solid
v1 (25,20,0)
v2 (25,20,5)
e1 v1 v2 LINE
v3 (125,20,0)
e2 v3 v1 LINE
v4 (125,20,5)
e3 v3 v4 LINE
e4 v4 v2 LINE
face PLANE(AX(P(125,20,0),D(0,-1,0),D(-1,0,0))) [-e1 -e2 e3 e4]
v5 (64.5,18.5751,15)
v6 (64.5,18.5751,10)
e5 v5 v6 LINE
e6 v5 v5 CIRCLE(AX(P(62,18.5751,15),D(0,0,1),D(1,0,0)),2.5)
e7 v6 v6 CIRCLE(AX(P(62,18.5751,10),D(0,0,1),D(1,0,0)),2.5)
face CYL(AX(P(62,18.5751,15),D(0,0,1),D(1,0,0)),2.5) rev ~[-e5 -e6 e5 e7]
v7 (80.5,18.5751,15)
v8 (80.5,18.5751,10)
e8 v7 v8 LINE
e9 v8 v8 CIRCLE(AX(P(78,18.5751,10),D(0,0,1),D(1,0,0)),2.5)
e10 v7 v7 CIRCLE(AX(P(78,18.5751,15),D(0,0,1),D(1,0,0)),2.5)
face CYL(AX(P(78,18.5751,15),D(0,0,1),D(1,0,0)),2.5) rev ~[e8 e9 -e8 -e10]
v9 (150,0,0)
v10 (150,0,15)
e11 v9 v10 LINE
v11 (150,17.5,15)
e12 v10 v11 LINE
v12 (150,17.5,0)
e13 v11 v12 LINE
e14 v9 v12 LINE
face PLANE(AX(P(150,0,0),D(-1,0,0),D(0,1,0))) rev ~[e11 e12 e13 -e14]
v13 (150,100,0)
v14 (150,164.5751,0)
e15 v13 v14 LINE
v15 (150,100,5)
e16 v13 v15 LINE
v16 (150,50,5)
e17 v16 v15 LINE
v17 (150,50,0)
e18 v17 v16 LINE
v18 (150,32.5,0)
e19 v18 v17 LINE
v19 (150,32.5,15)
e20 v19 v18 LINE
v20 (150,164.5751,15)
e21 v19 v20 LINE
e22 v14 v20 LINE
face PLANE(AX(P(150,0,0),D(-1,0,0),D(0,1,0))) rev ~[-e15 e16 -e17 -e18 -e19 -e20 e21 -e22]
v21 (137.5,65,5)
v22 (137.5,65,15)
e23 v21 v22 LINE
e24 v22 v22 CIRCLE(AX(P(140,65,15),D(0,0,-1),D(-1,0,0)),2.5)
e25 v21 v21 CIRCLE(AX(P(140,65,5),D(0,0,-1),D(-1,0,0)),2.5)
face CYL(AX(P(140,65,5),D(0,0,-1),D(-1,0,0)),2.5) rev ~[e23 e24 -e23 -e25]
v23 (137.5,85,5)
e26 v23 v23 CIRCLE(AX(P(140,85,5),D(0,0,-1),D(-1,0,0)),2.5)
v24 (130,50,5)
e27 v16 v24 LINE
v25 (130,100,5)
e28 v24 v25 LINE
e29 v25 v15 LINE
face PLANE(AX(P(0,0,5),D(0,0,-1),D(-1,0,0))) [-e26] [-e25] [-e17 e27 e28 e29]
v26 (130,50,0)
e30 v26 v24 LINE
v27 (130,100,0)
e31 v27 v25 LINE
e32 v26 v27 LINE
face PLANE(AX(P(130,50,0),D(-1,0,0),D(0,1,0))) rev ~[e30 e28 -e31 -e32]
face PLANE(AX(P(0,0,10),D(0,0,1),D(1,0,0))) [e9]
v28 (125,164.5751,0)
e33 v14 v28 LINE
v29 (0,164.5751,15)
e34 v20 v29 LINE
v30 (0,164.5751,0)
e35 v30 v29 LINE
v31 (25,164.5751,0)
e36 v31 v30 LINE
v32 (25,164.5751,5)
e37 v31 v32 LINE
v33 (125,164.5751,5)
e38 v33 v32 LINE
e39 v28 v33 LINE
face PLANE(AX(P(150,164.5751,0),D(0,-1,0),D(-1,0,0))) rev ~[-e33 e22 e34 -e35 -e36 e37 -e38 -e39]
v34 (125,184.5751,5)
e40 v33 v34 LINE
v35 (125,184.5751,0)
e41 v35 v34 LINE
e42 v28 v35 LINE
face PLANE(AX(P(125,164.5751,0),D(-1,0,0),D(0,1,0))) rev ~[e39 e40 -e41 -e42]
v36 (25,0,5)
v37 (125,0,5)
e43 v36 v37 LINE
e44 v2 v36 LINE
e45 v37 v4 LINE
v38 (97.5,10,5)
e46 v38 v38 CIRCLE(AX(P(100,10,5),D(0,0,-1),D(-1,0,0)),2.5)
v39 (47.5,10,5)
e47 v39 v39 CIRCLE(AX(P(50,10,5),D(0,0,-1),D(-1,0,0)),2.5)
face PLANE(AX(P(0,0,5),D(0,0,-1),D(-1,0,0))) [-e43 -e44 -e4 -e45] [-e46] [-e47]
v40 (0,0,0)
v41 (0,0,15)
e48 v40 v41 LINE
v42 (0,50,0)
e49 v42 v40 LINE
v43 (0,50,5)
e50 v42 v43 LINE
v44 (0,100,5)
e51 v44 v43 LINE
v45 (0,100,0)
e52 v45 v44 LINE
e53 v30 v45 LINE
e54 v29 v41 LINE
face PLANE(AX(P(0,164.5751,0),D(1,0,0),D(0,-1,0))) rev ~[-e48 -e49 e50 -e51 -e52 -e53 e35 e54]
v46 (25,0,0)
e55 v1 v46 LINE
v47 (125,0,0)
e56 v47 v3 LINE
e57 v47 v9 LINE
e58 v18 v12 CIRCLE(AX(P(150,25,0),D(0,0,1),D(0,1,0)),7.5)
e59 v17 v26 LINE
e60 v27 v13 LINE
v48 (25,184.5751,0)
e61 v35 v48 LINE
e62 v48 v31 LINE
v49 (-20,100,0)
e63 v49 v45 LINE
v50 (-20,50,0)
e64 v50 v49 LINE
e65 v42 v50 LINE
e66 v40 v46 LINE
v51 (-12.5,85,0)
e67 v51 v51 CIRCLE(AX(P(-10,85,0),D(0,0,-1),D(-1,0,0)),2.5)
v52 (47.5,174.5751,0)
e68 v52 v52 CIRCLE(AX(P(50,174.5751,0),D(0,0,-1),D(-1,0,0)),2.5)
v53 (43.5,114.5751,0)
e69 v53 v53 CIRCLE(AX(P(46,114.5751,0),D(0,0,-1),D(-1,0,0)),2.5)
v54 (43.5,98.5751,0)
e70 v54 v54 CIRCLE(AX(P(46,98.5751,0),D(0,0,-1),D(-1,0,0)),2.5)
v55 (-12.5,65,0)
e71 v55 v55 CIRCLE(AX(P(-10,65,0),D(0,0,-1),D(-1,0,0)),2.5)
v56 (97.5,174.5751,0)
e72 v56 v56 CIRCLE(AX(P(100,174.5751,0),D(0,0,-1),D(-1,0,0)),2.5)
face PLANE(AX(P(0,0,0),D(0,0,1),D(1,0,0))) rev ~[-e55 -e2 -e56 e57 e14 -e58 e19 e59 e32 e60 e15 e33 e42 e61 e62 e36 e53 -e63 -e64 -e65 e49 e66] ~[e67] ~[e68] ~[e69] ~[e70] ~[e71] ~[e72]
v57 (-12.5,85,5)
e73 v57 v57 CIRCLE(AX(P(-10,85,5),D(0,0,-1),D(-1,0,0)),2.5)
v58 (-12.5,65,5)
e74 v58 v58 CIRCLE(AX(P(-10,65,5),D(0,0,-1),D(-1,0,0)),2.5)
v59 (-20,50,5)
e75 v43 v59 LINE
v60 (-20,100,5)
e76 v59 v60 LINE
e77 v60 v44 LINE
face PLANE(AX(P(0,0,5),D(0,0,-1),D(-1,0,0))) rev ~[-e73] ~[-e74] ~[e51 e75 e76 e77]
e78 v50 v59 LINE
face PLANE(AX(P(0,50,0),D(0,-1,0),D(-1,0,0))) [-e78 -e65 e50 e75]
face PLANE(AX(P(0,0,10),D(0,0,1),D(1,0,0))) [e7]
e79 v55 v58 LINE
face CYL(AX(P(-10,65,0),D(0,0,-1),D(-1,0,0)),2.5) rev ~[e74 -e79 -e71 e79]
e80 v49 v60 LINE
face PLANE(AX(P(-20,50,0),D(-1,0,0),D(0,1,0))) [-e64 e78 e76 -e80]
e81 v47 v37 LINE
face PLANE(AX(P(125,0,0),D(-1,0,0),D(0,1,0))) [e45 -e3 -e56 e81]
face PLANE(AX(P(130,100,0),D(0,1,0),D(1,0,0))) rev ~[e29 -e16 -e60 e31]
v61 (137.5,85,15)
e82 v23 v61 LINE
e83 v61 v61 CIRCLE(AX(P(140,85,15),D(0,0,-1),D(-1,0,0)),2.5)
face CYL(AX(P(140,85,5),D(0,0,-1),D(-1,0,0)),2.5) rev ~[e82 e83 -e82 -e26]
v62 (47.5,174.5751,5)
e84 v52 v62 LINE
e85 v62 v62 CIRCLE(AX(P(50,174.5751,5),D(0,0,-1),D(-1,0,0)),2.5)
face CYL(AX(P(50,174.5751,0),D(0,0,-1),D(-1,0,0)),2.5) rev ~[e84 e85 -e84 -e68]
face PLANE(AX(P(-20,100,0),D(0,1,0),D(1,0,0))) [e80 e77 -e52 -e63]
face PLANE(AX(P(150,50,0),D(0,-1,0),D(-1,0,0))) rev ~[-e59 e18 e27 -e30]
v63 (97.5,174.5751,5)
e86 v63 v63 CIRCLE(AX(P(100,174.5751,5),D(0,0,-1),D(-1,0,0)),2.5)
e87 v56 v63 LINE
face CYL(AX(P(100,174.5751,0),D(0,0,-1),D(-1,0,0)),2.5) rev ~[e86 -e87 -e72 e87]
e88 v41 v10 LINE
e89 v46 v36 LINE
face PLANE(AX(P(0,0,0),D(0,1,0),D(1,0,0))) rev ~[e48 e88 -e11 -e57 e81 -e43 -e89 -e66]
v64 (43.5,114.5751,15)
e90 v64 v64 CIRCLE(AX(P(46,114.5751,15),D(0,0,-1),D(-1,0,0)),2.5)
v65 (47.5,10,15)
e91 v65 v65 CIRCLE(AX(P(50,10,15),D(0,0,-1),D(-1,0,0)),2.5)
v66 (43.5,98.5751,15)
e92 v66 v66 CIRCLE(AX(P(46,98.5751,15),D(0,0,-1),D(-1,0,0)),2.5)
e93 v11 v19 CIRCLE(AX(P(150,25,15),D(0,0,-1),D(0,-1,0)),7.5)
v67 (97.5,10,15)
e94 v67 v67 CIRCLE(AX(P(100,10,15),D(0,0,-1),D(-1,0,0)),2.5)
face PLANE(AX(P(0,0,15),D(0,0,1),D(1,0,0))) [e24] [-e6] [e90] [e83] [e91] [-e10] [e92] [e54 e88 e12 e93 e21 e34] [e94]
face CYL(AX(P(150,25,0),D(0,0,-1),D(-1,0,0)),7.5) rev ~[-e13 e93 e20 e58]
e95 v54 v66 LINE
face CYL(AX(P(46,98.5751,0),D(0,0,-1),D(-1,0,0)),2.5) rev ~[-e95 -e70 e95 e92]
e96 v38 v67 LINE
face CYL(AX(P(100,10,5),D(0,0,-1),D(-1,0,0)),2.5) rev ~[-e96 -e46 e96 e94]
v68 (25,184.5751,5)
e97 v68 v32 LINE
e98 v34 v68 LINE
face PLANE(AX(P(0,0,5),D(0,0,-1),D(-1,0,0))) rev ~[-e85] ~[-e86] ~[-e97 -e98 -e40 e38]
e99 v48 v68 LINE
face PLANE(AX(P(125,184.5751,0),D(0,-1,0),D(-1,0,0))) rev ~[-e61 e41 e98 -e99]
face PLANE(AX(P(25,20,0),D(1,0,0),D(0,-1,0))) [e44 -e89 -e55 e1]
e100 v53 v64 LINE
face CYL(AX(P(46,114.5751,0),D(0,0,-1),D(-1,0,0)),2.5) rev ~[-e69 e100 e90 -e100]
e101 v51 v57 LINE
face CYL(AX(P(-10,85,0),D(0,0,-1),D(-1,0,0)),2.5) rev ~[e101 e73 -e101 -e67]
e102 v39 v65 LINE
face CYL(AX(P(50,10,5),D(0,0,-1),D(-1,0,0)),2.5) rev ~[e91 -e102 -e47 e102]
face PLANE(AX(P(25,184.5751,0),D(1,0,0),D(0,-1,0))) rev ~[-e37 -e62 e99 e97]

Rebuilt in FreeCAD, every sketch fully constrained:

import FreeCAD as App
import Part
import Sketcher
Q = App.Units.Quantity

doc = App.newDocument("Part")
body = doc.addObject("PartDesign::Body", "Body")

# Sketch on XY plane
sketch1 = body.newObject("Sketcher::SketchObject", "Sketch")
sketch1.AttachmentSupport = (doc.getObject("XY_Plane"), [""])
sketch1.MapMode = "FlatFace"
sketch1.addGeometry(Part.LineSegment(App.Vector(0, 165, 0), App.Vector(0, 0, 0)), False)
sketch1.addGeometry(Part.LineSegment(App.Vector(0, 0, 0), App.Vector(150, 0, 0)), False)
sketch1.addGeometry(Part.LineSegment(App.Vector(150, 0, 0), App.Vector(150, 165, 0)), False)
sketch1.addGeometry(Part.LineSegment(App.Vector(150, 165, 0), App.Vector(0, 165, 0)), False)
sketch1.addConstraint(Sketcher.Constraint("Coincident", 0, 2, 1, 1))
sketch1.addConstraint(Sketcher.Constraint("Coincident", 1, 2, 2, 1))
sketch1.addConstraint(Sketcher.Constraint("Coincident", 2, 2, 3, 1))
sketch1.addConstraint(Sketcher.Constraint("Coincident", 3, 2, 0, 1))
sketch1.addConstraint(Sketcher.Constraint("Vertical", 0))
sketch1.addConstraint(Sketcher.Constraint("Horizontal", 1))
sketch1.addConstraint(Sketcher.Constraint("Vertical", 2))
sketch1.addConstraint(Sketcher.Constraint("Horizontal", 3))
sketch1.addConstraint(Sketcher.Constraint("Coincident", 0, 2, -1, 1))
sketch1.addConstraint(Sketcher.Constraint("DistanceX", 1, 1, 1, 2, Q("150 mm")))
sketch1.addConstraint(Sketcher.Constraint("DistanceY", 0, 2, 0, 1, Q("164.575 mm")))
pad1 = body.newObject("PartDesign::Pad", "Pad")
pad1.Profile = sketch1
pad1.Length = 15

# Sketch on XY plane
sketch2 = body.newObject("Sketcher::SketchObject", "Sketch001")
sketch2.AttachmentSupport = (doc.getObject("XY_Plane"), [""])
sketch2.MapMode = "FlatFace"
sketch2.addGeometry(Part.LineSegment(App.Vector(0, 100, 0), App.Vector(0, 50, 0)), False)
sketch2.addGeometry(Part.LineSegment(App.Vector(0, 50, 0), App.Vector(-20, 50, 0)), False)
sketch2.addGeometry(Part.LineSegment(App.Vector(-20, 50, 0), App.Vector(-20, 100, 0)), False)
sketch2.addGeometry(Part.LineSegment(App.Vector(-20, 100, 0), App.Vector(0, 100, 0)), False)
sketch2.addConstraint(Sketcher.Constraint("Coincident", 0, 2, 1, 1))
sketch2.addConstraint(Sketcher.Constraint("Coincident", 1, 2, 2, 1))
sketch2.addConstraint(Sketcher.Constraint("Coincident", 2, 2, 3, 1))
sketch2.addConstraint(Sketcher.Constraint("Coincident", 3, 2, 0, 1))
sketch2.addConstraint(Sketcher.Constraint("Vertical", 0))
sketch2.addConstraint(Sketcher.Constraint("Horizontal", 1))
sketch2.addConstraint(Sketcher.Constraint("Vertical", 2))
sketch2.addConstraint(Sketcher.Constraint("Horizontal", 3))
sketch2.addConstraint(Sketcher.Constraint("PointOnObject", 0, 2, -2))
sketch2.addConstraint(Sketcher.Constraint("DistanceX", 1, 2, 1, 1, Q("20 mm")))
sketch2.addConstraint(Sketcher.Constraint("DistanceY", 0, 2, 0, 1, Q("50 mm")))
sketch2.addConstraint(Sketcher.Constraint("DistanceY", -1, 1, 0, 2, Q("50 mm")))
pad2 = body.newObject("PartDesign::Pad", "Pad001")
pad2.Profile = sketch2
pad2.Length = 5

# Sketch on XY plane
sketch3 = body.newObject("Sketcher::SketchObject", "Sketch002")
sketch3.AttachmentSupport = (doc.getObject("XY_Plane"), [""])
sketch3.MapMode = "FlatFace"
sketch3.addGeometry(Part.LineSegment(App.Vector(125, 185, 0), App.Vector(125, 165, 0)), False)
sketch3.addGeometry(Part.LineSegment(App.Vector(125, 165, 0), App.Vector(25, 165, 0)), False)
sketch3.addGeometry(Part.LineSegment(App.Vector(25, 165, 0), App.Vector(25, 185, 0)), False)
sketch3.addGeometry(Part.LineSegment(App.Vector(25, 185, 0), App.Vector(125, 185, 0)), False)
sketch3.addConstraint(Sketcher.Constraint("Coincident", 0, 2, 1, 1))
sketch3.addConstraint(Sketcher.Constraint("Coincident", 1, 2, 2, 1))
sketch3.addConstraint(Sketcher.Constraint("Coincident", 2, 2, 3, 1))
sketch3.addConstraint(Sketcher.Constraint("Coincident", 3, 2, 0, 1))
sketch3.addConstraint(Sketcher.Constraint("Vertical", 0))
sketch3.addConstraint(Sketcher.Constraint("Horizontal", 1))
sketch3.addConstraint(Sketcher.Constraint("Vertical", 2))
sketch3.addConstraint(Sketcher.Constraint("Horizontal", 3))
sketch3.addConstraint(Sketcher.Constraint("DistanceX", 1, 2, 1, 1, Q("100 mm")))
sketch3.addConstraint(Sketcher.Constraint("DistanceY", 0, 2, 0, 1, Q("20 mm")))
sketch3.addConstraint(Sketcher.Constraint("DistanceX", -1, 1, 0, 2, Q("125 mm")))
sketch3.addConstraint(Sketcher.Constraint("DistanceY", -1, 1, 0, 2, Q("164.575 mm")))
pad3 = body.newObject("PartDesign::Pad", "Pad002")
pad3.Profile = sketch3
pad3.Length = 5

# Sketch on XY plane
sketch4 = body.newObject("Sketcher::SketchObject", "Sketch003")
sketch4.AttachmentSupport = (doc.getObject("XY_Plane"), [""])
sketch4.MapMode = "FlatFace"
sketch4.addGeometry(Part.Circle(App.Vector(50, 174.6, 0), App.Vector(0, 0, 1), 2.5), False)
sketch4.addGeometry(Part.Circle(App.Vector(100, 174.6, 0), App.Vector(0, 0, 1), 2.5), False)
sketch4.addGeometry(Part.Circle(App.Vector(-10, 65, 0), App.Vector(0, 0, 1), 2.5), False)
sketch4.addGeometry(Part.Circle(App.Vector(-10, 85, 0), App.Vector(0, 0, 1), 2.5), False)
sketch4.addConstraint(Sketcher.Constraint("Equal", 0, 1))
sketch4.addConstraint(Sketcher.Constraint("Equal", 1, 2))
sketch4.addConstraint(Sketcher.Constraint("Equal", 2, 3))
sketch4.addConstraint(Sketcher.Constraint("Horizontal", 0, 3, 1, 3))
sketch4.addConstraint(Sketcher.Constraint("Vertical", 2, 3, 3, 3))
sketch4.addConstraint(Sketcher.Constraint("Diameter", 0, Q("5 mm")))
sketch4.addConstraint(Sketcher.Constraint("DistanceX", 2, 3, -1, 1, Q("10 mm")))
sketch4.addConstraint(Sketcher.Constraint("DistanceX", -1, 1, 0, 3, Q("50 mm")))
sketch4.addConstraint(Sketcher.Constraint("DistanceX", -1, 1, 1, 3, Q("100 mm")))
sketch4.addConstraint(Sketcher.Constraint("DistanceY", -1, 1, 2, 3, Q("65 mm")))
sketch4.addConstraint(Sketcher.Constraint("DistanceY", -1, 1, 3, 3, Q("85 mm")))
sketch4.addConstraint(Sketcher.Constraint("DistanceY", -1, 1, 0, 3, Q("174.575 mm")))
pocket1 = body.newObject("PartDesign::Pocket", "Pocket")
pocket1.Profile = sketch4
pocket1.Type = "ThroughAll"
pocket1.Reversed = True

# Sketch on XY plane
sketch5 = body.newObject("Sketcher::SketchObject", "Sketch004")
sketch5.AttachmentSupport = (doc.getObject("XY_Plane"), [""])
sketch5.MapMode = "FlatFace"
sketch5.addGeometry(Part.LineSegment(App.Vector(150, 100, 0), App.Vector(150, 50, 0)), False)
sketch5.addGeometry(Part.LineSegment(App.Vector(150, 50, 0), App.Vector(130, 50, 0)), False)
sketch5.addGeometry(Part.LineSegment(App.Vector(130, 50, 0), App.Vector(130, 100, 0)), False)
sketch5.addGeometry(Part.LineSegment(App.Vector(130, 100, 0), App.Vector(150, 100, 0)), False)
sketch5.addConstraint(Sketcher.Constraint("Coincident", 0, 2, 1, 1))
sketch5.addConstraint(Sketcher.Constraint("Coincident", 1, 2, 2, 1))
sketch5.addConstraint(Sketcher.Constraint("Coincident", 2, 2, 3, 1))
sketch5.addConstraint(Sketcher.Constraint("Coincident", 3, 2, 0, 1))
sketch5.addConstraint(Sketcher.Constraint("Vertical", 0))
sketch5.addConstraint(Sketcher.Constraint("Horizontal", 1))
sketch5.addConstraint(Sketcher.Constraint("Vertical", 2))
sketch5.addConstraint(Sketcher.Constraint("Horizontal", 3))
sketch5.addConstraint(Sketcher.Constraint("DistanceX", 1, 2, 1, 1, Q("20 mm")))
sketch5.addConstraint(Sketcher.Constraint("DistanceY", 0, 2, 0, 1, Q("50 mm")))
sketch5.addConstraint(Sketcher.Constraint("DistanceY", -1, 1, 0, 2, Q("50 mm")))
sketch5.addConstraint(Sketcher.Constraint("DistanceX", -1, 1, 0, 2, Q("150 mm")))
pocket2 = body.newObject("PartDesign::Pocket", "Pocket001")
pocket2.Profile = sketch5
pocket2.Length = 5
pocket2.Reversed = True

# Sketch on XY plane
sketch6 = body.newObject("Sketcher::SketchObject", "Sketch005")
sketch6.AttachmentSupport = (doc.getObject("XY_Plane"), [""])
sketch6.MapMode = "FlatFace"
sketch6.AttachmentOffset = App.Placement(App.Vector(0, 0, 5), App.Rotation())
sketch6.addGeometry(Part.Circle(App.Vector(140, 85, 0), App.Vector(0, 0, 1), 2.5), False)
sketch6.addGeometry(Part.Circle(App.Vector(140, 65, 0), App.Vector(0, 0, 1), 2.5), False)
sketch6.addConstraint(Sketcher.Constraint("Equal", 0, 1))
sketch6.addConstraint(Sketcher.Constraint("Vertical", 0, 3, 1, 3))
sketch6.addConstraint(Sketcher.Constraint("Diameter", 0, Q("5 mm")))
sketch6.addConstraint(Sketcher.Constraint("DistanceX", -1, 1, 0, 3, Q("140 mm")))
sketch6.addConstraint(Sketcher.Constraint("DistanceY", -1, 1, 0, 3, Q("85 mm")))
sketch6.addConstraint(Sketcher.Constraint("DistanceY", -1, 1, 1, 3, Q("65 mm")))
pocket3 = body.newObject("PartDesign::Pocket", "Pocket002")
pocket3.Profile = sketch6
pocket3.Type = "ThroughAll"
pocket3.Reversed = True

# Sketch on XY plane
sketch7 = body.newObject("Sketcher::SketchObject", "Sketch006")
sketch7.AttachmentSupport = (doc.getObject("XY_Plane"), [""])
sketch7.MapMode = "FlatFace"
sketch7.addGeometry(Part.LineSegment(App.Vector(125, 0, 0), App.Vector(25, 0, 0)), False)
sketch7.addGeometry(Part.LineSegment(App.Vector(25, 0, 0), App.Vector(25, 20, 0)), False)
sketch7.addGeometry(Part.LineSegment(App.Vector(25, 20, 0), App.Vector(125, 20, 0)), False)
sketch7.addGeometry(Part.LineSegment(App.Vector(125, 20, 0), App.Vector(125, 0, 0)), False)
sketch7.addConstraint(Sketcher.Constraint("Coincident", 0, 2, 1, 1))
sketch7.addConstraint(Sketcher.Constraint("Coincident", 1, 2, 2, 1))
sketch7.addConstraint(Sketcher.Constraint("Coincident", 2, 2, 3, 1))
sketch7.addConstraint(Sketcher.Constraint("Coincident", 3, 2, 0, 1))
sketch7.addConstraint(Sketcher.Constraint("Horizontal", 0))
sketch7.addConstraint(Sketcher.Constraint("Vertical", 1))
sketch7.addConstraint(Sketcher.Constraint("Horizontal", 2))
sketch7.addConstraint(Sketcher.Constraint("Vertical", 3))
sketch7.addConstraint(Sketcher.Constraint("PointOnObject", 0, 2, -1))
sketch7.addConstraint(Sketcher.Constraint("DistanceX", 0, 2, 0, 1, Q("100 mm")))
sketch7.addConstraint(Sketcher.Constraint("DistanceY", 1, 1, 1, 2, Q("20 mm")))
sketch7.addConstraint(Sketcher.Constraint("DistanceX", -1, 1, 0, 2, Q("25 mm")))
pocket4 = body.newObject("PartDesign::Pocket", "Pocket003")
pocket4.Profile = sketch7
pocket4.Length = 5
pocket4.Reversed = True

# Sketch on XY plane
sketch8 = body.newObject("Sketcher::SketchObject", "Sketch007")
sketch8.AttachmentSupport = (doc.getObject("XY_Plane"), [""])
sketch8.MapMode = "FlatFace"
sketch8.AttachmentOffset = App.Placement(App.Vector(0, 0, 5), App.Rotation())
sketch8.addGeometry(Part.Circle(App.Vector(50, 10, 0), App.Vector(0, 0, 1), 2.5), False)
sketch8.addGeometry(Part.Circle(App.Vector(100, 10, 0), App.Vector(0, 0, 1), 2.5), False)
sketch8.addConstraint(Sketcher.Constraint("Equal", 0, 1))
sketch8.addConstraint(Sketcher.Constraint("Horizontal", 0, 3, 1, 3))
sketch8.addConstraint(Sketcher.Constraint("Diameter", 0, Q("5 mm")))
sketch8.addConstraint(Sketcher.Constraint("DistanceY", -1, 1, 0, 3, Q("10 mm")))
sketch8.addConstraint(Sketcher.Constraint("DistanceX", -1, 1, 0, 3, Q("50 mm")))
sketch8.addConstraint(Sketcher.Constraint("DistanceX", -1, 1, 1, 3, Q("100 mm")))
pocket5 = body.newObject("PartDesign::Pocket", "Pocket004")
pocket5.Profile = sketch8
pocket5.Type = "ThroughAll"
pocket5.Reversed = True

# Sketch on XY plane
sketch9 = body.newObject("Sketcher::SketchObject", "Sketch008")
sketch9.AttachmentSupport = (doc.getObject("XY_Plane"), [""])
sketch9.MapMode = "FlatFace"
sketch9.addGeometry(Part.Circle(App.Vector(46, 98.6, 0), App.Vector(0, 0, 1), 2.5), False)
sketch9.addGeometry(Part.Circle(App.Vector(46, 114.6, 0), App.Vector(0, 0, 1), 2.5), False)
sketch9.addConstraint(Sketcher.Constraint("Equal", 0, 1))
sketch9.addConstraint(Sketcher.Constraint("Vertical", 0, 3, 1, 3))
sketch9.addConstraint(Sketcher.Constraint("Diameter", 0, Q("5 mm")))
sketch9.addConstraint(Sketcher.Constraint("DistanceY", 0, 3, 1, 3, Q("16 mm")))
sketch9.addConstraint(Sketcher.Constraint("DistanceX", -1, 1, 0, 3, Q("46 mm")))
sketch9.addConstraint(Sketcher.Constraint("DistanceY", -1, 1, 0, 3, Q("98.575 mm")))
pocket6 = body.newObject("PartDesign::Pocket", "Pocket005")
pocket6.Profile = sketch9
pocket6.Type = "ThroughAll"
pocket6.Reversed = True

# Sketch on XY plane
sketch10 = body.newObject("Sketcher::SketchObject", "Sketch009")
sketch10.AttachmentSupport = (doc.getObject("XY_Plane"), [""])
sketch10.MapMode = "FlatFace"
sketch10.addGeometry(Part.Circle(App.Vector(150, 25, 0), App.Vector(0, 0, 1), 8), False)
sketch10.addConstraint(Sketcher.Constraint("Diameter", 0, Q("15 mm")))
sketch10.addConstraint(Sketcher.Constraint("DistanceX", -1, 1, 0, 3, Q("150 mm")))
sketch10.addConstraint(Sketcher.Constraint("DistanceY", -1, 1, 0, 3, Q("25 mm")))
pocket7 = body.newObject("PartDesign::Pocket", "Pocket006")
pocket7.Profile = sketch10
pocket7.Type = "ThroughAll"
pocket7.Reversed = True

# Sketch on XY plane
sketch11 = body.newObject("Sketcher::SketchObject", "Sketch010")
sketch11.AttachmentSupport = (doc.getObject("XY_Plane"), [""])
sketch11.MapMode = "FlatFace"
sketch11.AttachmentOffset = App.Placement(App.Vector(0, 0, 15), App.Rotation())
sketch11.addGeometry(Part.Circle(App.Vector(62, 18.6, 0), App.Vector(0, 0, 1), 2.5), False)
sketch11.addGeometry(Part.Circle(App.Vector(78, 18.6, 0), App.Vector(0, 0, 1), 2.5), False)
sketch11.addConstraint(Sketcher.Constraint("Equal", 0, 1))
sketch11.addConstraint(Sketcher.Constraint("Horizontal", 0, 3, 1, 3))
sketch11.addConstraint(Sketcher.Constraint("Diameter", 0, Q("5 mm")))
sketch11.addConstraint(Sketcher.Constraint("DistanceX", 0, 3, 1, 3, Q("16 mm")))
sketch11.addConstraint(Sketcher.Constraint("DistanceX", -1, 1, 0, 3, Q("62 mm")))
sketch11.addConstraint(Sketcher.Constraint("DistanceY", -1, 1, 0, 3, Q("18.575 mm")))
pocket8 = body.newObject("PartDesign::Pocket", "Pocket007")
pocket8.Profile = sketch11
pocket8.Length = 5

doc.recompute()
